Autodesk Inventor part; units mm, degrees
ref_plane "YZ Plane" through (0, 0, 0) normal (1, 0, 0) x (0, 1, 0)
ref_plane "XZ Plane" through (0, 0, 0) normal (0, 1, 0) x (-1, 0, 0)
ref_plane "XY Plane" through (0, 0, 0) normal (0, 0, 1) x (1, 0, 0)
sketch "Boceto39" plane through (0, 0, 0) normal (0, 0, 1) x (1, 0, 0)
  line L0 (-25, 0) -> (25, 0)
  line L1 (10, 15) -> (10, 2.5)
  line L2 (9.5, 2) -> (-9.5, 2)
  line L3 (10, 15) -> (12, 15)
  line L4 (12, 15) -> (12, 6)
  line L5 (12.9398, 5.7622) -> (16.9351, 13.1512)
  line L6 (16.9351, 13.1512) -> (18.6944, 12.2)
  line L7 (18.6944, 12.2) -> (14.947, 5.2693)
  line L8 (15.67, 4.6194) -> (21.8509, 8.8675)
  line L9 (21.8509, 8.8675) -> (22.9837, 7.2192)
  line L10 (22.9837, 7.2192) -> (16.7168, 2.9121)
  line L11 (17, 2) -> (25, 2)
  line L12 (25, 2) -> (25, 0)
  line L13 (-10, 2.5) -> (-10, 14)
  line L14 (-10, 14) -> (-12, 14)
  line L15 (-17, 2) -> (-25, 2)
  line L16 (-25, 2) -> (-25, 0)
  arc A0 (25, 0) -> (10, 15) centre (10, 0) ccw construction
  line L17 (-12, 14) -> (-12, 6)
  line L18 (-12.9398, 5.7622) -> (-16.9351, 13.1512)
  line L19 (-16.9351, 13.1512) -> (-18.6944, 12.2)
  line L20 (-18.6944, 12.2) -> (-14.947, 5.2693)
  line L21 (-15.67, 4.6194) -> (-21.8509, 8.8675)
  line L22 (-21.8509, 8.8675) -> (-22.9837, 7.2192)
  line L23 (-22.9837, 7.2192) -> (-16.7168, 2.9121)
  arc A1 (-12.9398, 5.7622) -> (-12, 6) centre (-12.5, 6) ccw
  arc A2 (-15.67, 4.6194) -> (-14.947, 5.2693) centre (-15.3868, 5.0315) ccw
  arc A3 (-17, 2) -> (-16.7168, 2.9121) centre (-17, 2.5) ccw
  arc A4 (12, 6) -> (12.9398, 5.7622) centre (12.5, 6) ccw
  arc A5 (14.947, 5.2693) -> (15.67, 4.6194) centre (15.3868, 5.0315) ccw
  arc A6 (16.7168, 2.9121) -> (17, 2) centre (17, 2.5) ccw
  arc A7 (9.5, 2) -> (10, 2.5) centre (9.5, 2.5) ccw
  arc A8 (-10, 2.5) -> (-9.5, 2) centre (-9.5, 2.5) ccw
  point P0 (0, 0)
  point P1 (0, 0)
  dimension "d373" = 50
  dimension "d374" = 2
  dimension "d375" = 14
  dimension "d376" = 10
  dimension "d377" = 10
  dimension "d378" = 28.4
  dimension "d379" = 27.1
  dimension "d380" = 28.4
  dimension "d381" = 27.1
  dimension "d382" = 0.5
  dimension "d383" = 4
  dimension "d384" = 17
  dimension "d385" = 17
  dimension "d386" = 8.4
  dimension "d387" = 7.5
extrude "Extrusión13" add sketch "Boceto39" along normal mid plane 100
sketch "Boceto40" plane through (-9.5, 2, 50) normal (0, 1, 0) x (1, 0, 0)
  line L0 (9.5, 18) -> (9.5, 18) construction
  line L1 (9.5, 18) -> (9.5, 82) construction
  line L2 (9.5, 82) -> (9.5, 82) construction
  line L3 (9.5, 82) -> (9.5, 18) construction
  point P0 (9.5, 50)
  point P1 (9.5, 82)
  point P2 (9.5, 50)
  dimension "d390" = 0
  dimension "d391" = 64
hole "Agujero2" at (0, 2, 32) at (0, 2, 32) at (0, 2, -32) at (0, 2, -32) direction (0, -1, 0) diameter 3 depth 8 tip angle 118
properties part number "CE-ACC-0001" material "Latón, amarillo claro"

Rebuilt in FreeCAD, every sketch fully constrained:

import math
import FreeCAD as App
import Part
import Sketcher
from FreeCAD import Vector
Q = App.Units.Quantity

doc = App.newDocument("Part")
body = doc.addObject("PartDesign::Body", "Body")

sketch1 = body.newObject("Sketcher::SketchObject", "Sketch")
sketch1.AttachmentSupport = (doc.getObject("XY_Plane"), [""])
sketch1.MapMode = "FlatFace"
sketch1.addGeometry([
    Part.LineSegment(Vector(-25, 2, 0), Vector(-25, 0, 0)),
    Part.LineSegment(Vector(-25, 0, 0), Vector(25, 0, 0)),
    Part.LineSegment(Vector(25, 0, 0), Vector(25, 2, 0)),
    Part.LineSegment(Vector(25, 2, 0), Vector(17, 2, 0)),
    Part.ArcOfCircle(Part.Circle(Vector(17, 2.5, 0), Vector(0, 0, 1), 0.5), math.radians(124), math.radians(270)),
    Part.LineSegment(Vector(16.72, 2.91, 0), Vector(22.98, 7.22, 0)),
    Part.LineSegment(Vector(22.98, 7.22, 0), Vector(21.85, 8.87, 0)),
    Part.LineSegment(Vector(21.85, 8.87, 0), Vector(15.67, 4.62, 0)),
    Part.ArcOfCircle(Part.Circle(Vector(15.39, 5.03, 0), Vector(0, 0, 1), 0.5), math.radians(152), math.radians(304)),
    Part.LineSegment(Vector(14.95, 5.27, 0), Vector(18.69, 12.2, 0)),
    Part.LineSegment(Vector(18.69, 12.2, 0), Vector(16.94, 13.15, 0)),
    Part.LineSegment(Vector(16.94, 13.15, 0), Vector(12.94, 5.76, 0)),
    Part.ArcOfCircle(Part.Circle(Vector(12.5, 6, 0), Vector(0, 0, 1), 0.5), math.radians(180), math.radians(332)),
    Part.LineSegment(Vector(12, 6, 0), Vector(12, 15, 0)),
    Part.LineSegment(Vector(12, 15, 0), Vector(10, 15, 0)),
    Part.LineSegment(Vector(10, 15, 0), Vector(10, 2.5, 0)),
    Part.ArcOfCircle(Part.Circle(Vector(9.5, 2.5, 0), Vector(0, 0, 1), 0.5), math.radians(-90), math.radians(0)),
    Part.LineSegment(Vector(9.5, 2, 0), Vector(-9.5, 2, 0)),
    Part.ArcOfCircle(Part.Circle(Vector(-9.5, 2.5, 0), Vector(0, 0, 1), 0.5), math.radians(180), math.radians(270)),
    Part.LineSegment(Vector(-10, 2.5, 0), Vector(-10, 14, 0)),
    Part.LineSegment(Vector(-10, 14, 0), Vector(-12, 14, 0)),
    Part.LineSegment(Vector(-12, 14, 0), Vector(-12, 6, 0)),
    Part.ArcOfCircle(Part.Circle(Vector(-12.5, 6, 0), Vector(0, 0, 1), 0.5), math.radians(-152), math.radians(0)),
    Part.LineSegment(Vector(-12.94, 5.76, 0), Vector(-16.94, 13.15, 0)),
    Part.LineSegment(Vector(-16.94, 13.15, 0), Vector(-18.69, 12.2, 0)),
    Part.LineSegment(Vector(-18.69, 12.2, 0), Vector(-14.95, 5.27, 0)),
    Part.ArcOfCircle(Part.Circle(Vector(-15.39, 5.03, 0), Vector(0, 0, 1), 0.5), math.radians(-124), math.radians(28)),
    Part.LineSegment(Vector(-15.67, 4.62, 0), Vector(-21.85, 8.87, 0)),
    Part.LineSegment(Vector(-21.85, 8.87, 0), Vector(-22.98, 7.22, 0)),
    Part.LineSegment(Vector(-22.98, 7.22, 0), Vector(-16.72, 2.91, 0)),
    Part.ArcOfCircle(Part.Circle(Vector(-17, 2.5, 0), Vector(0, 0, 1), 0.5), math.radians(-90), math.radians(56)),
    Part.LineSegment(Vector(-17, 2, 0), Vector(-25, 2, 0)),
], False)
sketch1.addConstraint([
    Sketcher.Constraint("Coincident", 0, 2, 1, 1),
    Sketcher.Constraint("Coincident", 1, 2, 2, 1),
    Sketcher.Constraint("Coincident", 2, 2, 3, 1),
    Sketcher.Constraint("Tangent", 3, 2, 4, 2),
    Sketcher.Constraint("Tangent", 4, 1, 5, 1),
    Sketcher.Constraint("Coincident", 5, 2, 6, 1),
    Sketcher.Constraint("Coincident", 6, 2, 7, 1),
    Sketcher.Constraint("Tangent", 7, 2, 8, 2),
    Sketcher.Constraint("Tangent", 8, 1, 9, 1),
    Sketcher.Constraint("Coincident", 9, 2, 10, 1),
    Sketcher.Constraint("Coincident", 10, 2, 11, 1),
    Sketcher.Constraint("Tangent", 11, 2, 12, 2),
    Sketcher.Constraint("Tangent", 12, 1, 13, 1),
    Sketcher.Constraint("Coincident", 13, 2, 14, 1),
    Sketcher.Constraint("Coincident", 14, 2, 15, 1),
    Sketcher.Constraint("Tangent", 15, 2, 16, 2),
    Sketcher.Constraint("Tangent", 16, 1, 17, 1),
    Sketcher.Constraint("Tangent", 17, 2, 18, 2),
    Sketcher.Constraint("Tangent", 18, 1, 19, 1),
    Sketcher.Constraint("Coincident", 19, 2, 20, 1),
    Sketcher.Constraint("Coincident", 20, 2, 21, 1),
    Sketcher.Constraint("Tangent", 21, 2, 22, 2),
    Sketcher.Constraint("Tangent", 22, 1, 23, 1),
    Sketcher.Constraint("Coincident", 23, 2, 24, 1),
    Sketcher.Constraint("Coincident", 24, 2, 25, 1),
    Sketcher.Constraint("Tangent", 25, 2, 26, 2),
    Sketcher.Constraint("Tangent", 26, 1, 27, 1),
    Sketcher.Constraint("Coincident", 27, 2, 28, 1),
    Sketcher.Constraint("Coincident", 28, 2, 29, 1),
    Sketcher.Constraint("Tangent", 29, 2, 30, 2),
    Sketcher.Constraint("Tangent", 30, 1, 31, 1),
    Sketcher.Constraint("Coincident", 31, 2, 0, 1),
    Sketcher.Constraint("Vertical", 0),
    Sketcher.Constraint("Horizontal", 1),
    Sketcher.Constraint("Vertical", 2),
    Sketcher.Constraint("Horizontal", 3),
    Sketcher.Constraint("Vertical", 13),
    Sketcher.Constraint("Horizontal", 14),
    Sketcher.Constraint("Vertical", 15),
    Sketcher.Constraint("Horizontal", 17),
    Sketcher.Constraint("Vertical", 19),
    Sketcher.Constraint("Horizontal", 20),
    Sketcher.Constraint("Vertical", 21),
    Sketcher.Constraint("Horizontal", 31),
    Sketcher.Constraint("Equal", 4, 8),
    Sketcher.Constraint("Equal", 8, 12),
    Sketcher.Constraint("Equal", 12, 16),
    Sketcher.Constraint("Equal", 16, 18),
    Sketcher.Constraint("Equal", 18, 22),
    Sketcher.Constraint("Equal", 22, 26),
    Sketcher.Constraint("Equal", 26, 30),
    Sketcher.Constraint("Symmetric", 0, 2, 1, 2, -1, 1),
    Sketcher.Constraint("Symmetric", 12, 3, 22, 3, -2),
    Sketcher.Constraint("Symmetric", 8, 3, 26, 3, -2),
    Sketcher.Constraint("Symmetric", 4, 3, 30, 3, -2),
    Sketcher.Constraint("Symmetric", 10, 2, 23, 2, -2),
    Sketcher.Constraint("Symmetric", 9, 2, 24, 2, -2),
    Sketcher.Constraint("Symmetric", 6, 2, 27, 2, -2),
    Sketcher.Constraint("Symmetric", 5, 2, 28, 2, -2),
    Sketcher.Constraint("Perpendicular", 5, 6),
    Sketcher.Constraint("Perpendicular", 6, 7),
    Sketcher.Constraint("Perpendicular", 9, 10),
    Sketcher.Constraint("Perpendicular", 10, 11),
    Sketcher.Constraint("Horizontal", 4, 3, 16, 3),
    Sketcher.Constraint("Equal", 14, 20),
    Sketcher.Constraint("Equal", 20, 0),
    Sketcher.Constraint("Equal", 31, 21),
    Sketcher.Constraint("Equal", 6, 10),
    Sketcher.Constraint("Radius", 4, Q("0.5 mm")),
    Sketcher.Constraint("DistanceX", 1, 1, 1, 2, Q("50 mm")),
    Sketcher.Constraint("DistanceX", 14, 2, 14, 1, Q("2 mm")),
    Sketcher.Constraint("Distance", 6, Q("2 mm")),
    Sketcher.Constraint("DistanceX", -1, 1, 4, 3, Q("17 mm")),
    Sketcher.Constraint("DistanceX", -1, 1, 14, 2, Q("10 mm")),
    Sketcher.Constraint("DistanceY", -1, 1, 19, 2, Q("14 mm")),
    Sketcher.Constraint("Distance", 7, Q("7.5 mm")),
    Sketcher.Constraint("Distance", 11, Q("8.4 mm")),
    Sketcher.Constraint("DistanceY", 13, 1, 13, 2, Q("9 mm")),
    Sketcher.Constraint("Angle", 5, Q("34.4999 deg")),
    Sketcher.Constraint("Angle", 9, Q("61.6 deg")),
])
pad1 = body.newObject("PartDesign::Pad", "Pad")
pad1.Profile = sketch1
pad1.Length = 100
pad1.Midplane = True

sketch2 = body.newObject("Sketcher::SketchObject", "Sketch001")
sketch2.AttachmentSupport = (doc.getObject("XZ_Plane"), [""])
sketch2.MapMode = "FlatFace"
sketch2.AttachmentOffset = App.Placement(Vector(0, 0, -2), App.Rotation())
sketch2.addGeometry([
    Part.Circle(Vector(0, 32, 0), Vector(0, 0, 1), 1.5),
    Part.Circle(Vector(0, 32, 0), Vector(0, 0, 1), 1.5),
    Part.Circle(Vector(0, -32, 0), Vector(0, 0, 1), 1.5),
    Part.Circle(Vector(0, -32, 0), Vector(0, 0, 1), 1.5),
], False)
sketch2.addConstraint([
    Sketcher.Constraint("Coincident", 1, 3, 0, 3),
    Sketcher.Constraint("Coincident", 3, 3, 2, 3),
    Sketcher.Constraint("Equal", 0, 1),
    Sketcher.Constraint("Equal", 1, 2),
    Sketcher.Constraint("Equal", 2, 3),
    Sketcher.Constraint("Symmetric", 0, 3, 2, 3, -1, 1),
    Sketcher.Constraint("PointOnObject", 0, 3, -2),
    Sketcher.Constraint("Diameter", 0, Q("3 mm")),
    Sketcher.Constraint("DistanceY", -1, 1, 0, 3, Q("32 mm")),
])
doc.recompute()
hole = body.newObject("PartDesign::Hole", "Hole")
hole.Profile = sketch2
hole.ThreadType = "None"
hole.Diameter = 3
hole.DepthType = "Dimension"
hole.Depth = 8
hole.DrillPoint = "Angled"
hole.DrillPointAngle = 118
hole.Reversed = True

doc.recompute()
